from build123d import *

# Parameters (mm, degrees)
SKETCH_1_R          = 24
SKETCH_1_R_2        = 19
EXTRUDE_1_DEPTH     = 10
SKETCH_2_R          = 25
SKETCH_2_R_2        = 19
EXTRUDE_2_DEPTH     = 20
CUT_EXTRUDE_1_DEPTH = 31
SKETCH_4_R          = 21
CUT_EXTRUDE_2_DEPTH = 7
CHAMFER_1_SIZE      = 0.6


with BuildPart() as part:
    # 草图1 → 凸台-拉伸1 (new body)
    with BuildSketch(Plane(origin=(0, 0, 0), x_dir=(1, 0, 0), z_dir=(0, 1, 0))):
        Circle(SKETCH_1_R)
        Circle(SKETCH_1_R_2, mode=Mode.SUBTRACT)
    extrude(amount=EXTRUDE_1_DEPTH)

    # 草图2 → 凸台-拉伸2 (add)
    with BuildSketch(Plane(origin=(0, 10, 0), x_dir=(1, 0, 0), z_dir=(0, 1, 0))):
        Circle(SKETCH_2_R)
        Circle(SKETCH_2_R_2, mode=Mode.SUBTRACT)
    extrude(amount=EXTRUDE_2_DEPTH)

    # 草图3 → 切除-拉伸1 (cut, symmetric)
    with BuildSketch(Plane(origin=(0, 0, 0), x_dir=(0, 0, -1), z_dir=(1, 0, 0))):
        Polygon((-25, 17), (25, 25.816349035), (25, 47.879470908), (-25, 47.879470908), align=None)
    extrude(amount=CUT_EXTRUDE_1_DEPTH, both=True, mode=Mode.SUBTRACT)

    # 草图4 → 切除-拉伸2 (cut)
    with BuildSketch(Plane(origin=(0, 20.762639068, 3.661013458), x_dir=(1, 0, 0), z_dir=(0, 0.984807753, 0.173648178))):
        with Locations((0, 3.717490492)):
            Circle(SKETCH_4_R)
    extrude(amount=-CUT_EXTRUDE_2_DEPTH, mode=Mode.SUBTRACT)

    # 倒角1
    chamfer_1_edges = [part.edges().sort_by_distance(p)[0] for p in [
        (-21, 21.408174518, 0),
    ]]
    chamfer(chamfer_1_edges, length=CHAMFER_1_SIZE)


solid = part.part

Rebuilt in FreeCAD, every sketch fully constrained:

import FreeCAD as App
import Part
import Sketcher

V = App.Vector
Q = App.Units.Quantity


def edges_at(feature, points):
    """Names of the edges that pass closest to the given points."""
    edges = feature.Shape.Edges
    near = lambda p: min(range(len(edges)), key=lambda i: edges[i].distToShape(Part.Vertex(*p))[0])
    return sorted({f"Edge{near(p) + 1}" for p in points})


def add_polygon(sketch, points):
    """Adds a closed chain of lines whose ends are joined by coincident constraints."""
    first, n = sketch.GeometryCount, len(points)
    for a, b in zip(points, points[1:] + points[:1]):
        sketch.addGeometry(Part.LineSegment(App.Vector(*a, 0), App.Vector(*b, 0)), False)
    for i in range(n):
        sketch.addConstraint(Sketcher.Constraint("Coincident", first + i, 2, first + (i + 1) % n, 1))

doc = App.newDocument("Part")
body = doc.addObject("PartDesign::Body", "Body")

sketch1 = body.newObject("Sketcher::SketchObject", "Sketch")
sketch1.AttachmentSupport = (doc.getObject("XZ_Plane"), [""])
sketch1.MapMode = "FlatFace"
sketch1.addGeometry([
    Part.Circle(V(0, 0, 0), V(0, 0, 1), 24),
    Part.Circle(V(0, 0, 0), V(0, 0, 1), 19),
], False)
sketch1.addConstraint([
    Sketcher.Constraint("Coincident", 0, 3, -1, 1),
    Sketcher.Constraint("Coincident", 1, 3, -1, 1),
    Sketcher.Constraint("Diameter", 0, Q("48 mm")),
    Sketcher.Constraint("Diameter", 1, Q("38 mm")),
])
pad1 = body.newObject("PartDesign::Pad", "Pad")
pad1.Profile = sketch1
pad1.Length = 10
pad1.Reversed = True

sketch2 = body.newObject("Sketcher::SketchObject", "Sketch001")
sketch2.AttachmentSupport = (doc.getObject("XZ_Plane"), [""])
sketch2.MapMode = "FlatFace"
sketch2.AttachmentOffset = App.Placement(V(0, 0, -10), App.Rotation())
sketch2.addGeometry([
    Part.Circle(V(0, 0, 0), V(0, 0, 1), 25),
    Part.Circle(V(0, 0, 0), V(0, 0, 1), 19),
], False)
sketch2.addConstraint([
    Sketcher.Constraint("Coincident", 0, 3, -1, 1),
    Sketcher.Constraint("Coincident", 1, 3, -1, 1),
    Sketcher.Constraint("Diameter", 0, Q("50 mm")),
    Sketcher.Constraint("Diameter", 1, Q("38 mm")),
])
pad2 = body.newObject("PartDesign::Pad", "Pad001")
pad2.Profile = sketch2
pad2.Length = 20
pad2.Reversed = True

sketch3 = body.newObject("Sketcher::SketchObject", "Sketch002")
sketch3.AttachmentSupport = (doc.getObject("YZ_Plane"), [""])
sketch3.MapMode = "FlatFace"
add_polygon(sketch3, [(17, 25), (25.816349, -25), (47.879471, -25), (47.879471, 25)])
sketch3.addConstraint([
    Sketcher.Constraint("Horizontal", 1),
    Sketcher.Constraint("Vertical", 2),
    Sketcher.Constraint("Horizontal", 3),
    Sketcher.Constraint("DistanceY", 2, 1, 2, 2, Q("50 mm")),
    Sketcher.Constraint("Angle", 0, Q("-80 deg")),
    Sketcher.Constraint("DistanceY", 0, 2, -1, 1, Q("25 mm")),
    Sketcher.Constraint("DistanceX", -1, 1, 3, 2, Q("17 mm")),
    Sketcher.Constraint("DistanceX", 1, 1, 1, 2, Q("22.063122 mm")),
])
pocket1 = body.newObject("PartDesign::Pocket", "Pocket")
pocket1.Profile = sketch3
pocket1.Length = 62
pocket1.Midplane = True

sketch4 = body.newObject("Sketcher::SketchObject", "Sketch003")
sketch4.Placement = App.Placement(V(0, 20.762639, 3.661013), App.Rotation(V(1, 0, 0), V(0, 0.173648178, -0.984807753), V(0, 0.984807753, 0.173648178), "ZXY"))
sketch4.addGeometry(Part.Circle(V(0, 3.71749, 0), V(0, 0, 1), 21), False)
sketch4.addConstraint([
    Sketcher.Constraint("PointOnObject", 0, 3, -2),
    Sketcher.Constraint("Diameter", 0, Q("42 mm")),
    Sketcher.Constraint("DistanceY", -1, 1, 0, 3, Q("3.71749 mm")),
])
pocket2 = body.newObject("PartDesign::Pocket", "Pocket001")
pocket2.Profile = sketch4
pocket2.Length = 7
doc.recompute()

chamfer = body.newObject("PartDesign::Chamfer", "Chamfer")
chamfer.Base = (pocket2, edges_at(pocket2, [(-21, 21.408, 0)]))
chamfer.Size = 0.6

doc.recompute()
